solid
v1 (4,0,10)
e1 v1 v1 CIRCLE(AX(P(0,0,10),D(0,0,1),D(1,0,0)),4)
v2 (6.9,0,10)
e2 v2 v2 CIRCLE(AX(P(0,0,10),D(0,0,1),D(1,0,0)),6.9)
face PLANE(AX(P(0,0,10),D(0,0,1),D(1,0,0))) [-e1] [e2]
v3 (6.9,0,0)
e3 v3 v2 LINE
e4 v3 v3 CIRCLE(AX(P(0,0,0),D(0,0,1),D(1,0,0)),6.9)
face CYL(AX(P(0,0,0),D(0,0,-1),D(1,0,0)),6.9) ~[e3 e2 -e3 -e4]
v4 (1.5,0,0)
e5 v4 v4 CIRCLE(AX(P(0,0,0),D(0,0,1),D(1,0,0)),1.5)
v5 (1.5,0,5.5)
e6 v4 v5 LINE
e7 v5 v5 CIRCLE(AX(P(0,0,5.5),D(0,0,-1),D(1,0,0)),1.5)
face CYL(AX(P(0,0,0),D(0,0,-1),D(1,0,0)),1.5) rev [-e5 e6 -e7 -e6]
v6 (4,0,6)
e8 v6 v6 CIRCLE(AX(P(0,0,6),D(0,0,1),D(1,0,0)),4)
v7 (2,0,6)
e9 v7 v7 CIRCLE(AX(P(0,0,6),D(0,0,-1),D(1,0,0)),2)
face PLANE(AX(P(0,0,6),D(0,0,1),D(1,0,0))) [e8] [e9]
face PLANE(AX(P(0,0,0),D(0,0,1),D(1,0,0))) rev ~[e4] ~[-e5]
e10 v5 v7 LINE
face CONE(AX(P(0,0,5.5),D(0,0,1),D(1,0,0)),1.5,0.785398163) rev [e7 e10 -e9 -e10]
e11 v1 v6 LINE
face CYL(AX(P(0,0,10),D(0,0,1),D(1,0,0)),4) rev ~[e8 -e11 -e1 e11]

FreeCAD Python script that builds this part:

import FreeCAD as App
import Part
import Sketcher


def edges_at(feature, points):
    """Names of the edges that pass closest to the given points."""
    edges = feature.Shape.Edges
    near = lambda p: min(range(len(edges)), key=lambda i: edges[i].distToShape(Part.Vertex(*p))[0])
    return sorted({f"Edge{near(p) + 1}" for p in points})

doc = App.newDocument("Part")
params = doc.addObject("Spreadsheet::Sheet", "Params")
for row, (alias, value) in enumerate([
    ("sketch1_diameter", "3 mm"),
    ("sketch1_diameter2", "13.8 mm"),
    ("pad1_length", "10 mm"),
    ("sketch2_diameter", "8 mm"),
    ("pocket1_length", "4 mm"),
    ("chamfer_size", "0.5 mm"),
], start=1):
    params.set(f"A{row}", alias)
    params.set(f"B{row}", "=" + value)
    params.setAlias(f"B{row}", alias)

body = doc.addObject("PartDesign::Body", "Body")

sketch1 = body.newObject("Sketcher::SketchObject", "Sketch")
sketch1.AttachmentSupport = (doc.getObject("XY_Plane"), [""])
sketch1.MapMode = "FlatFace"
sketch1.addGeometry(Part.Circle(App.Vector(0, 0, 0), App.Vector(0, 0, 1), 6.9), False)
sketch1.addGeometry(Part.Circle(App.Vector(0, 0, 0), App.Vector(0, 0, 1), 1.5), False)
sketch1.addConstraint(Sketcher.Constraint("Coincident", 0, 3, -1, 1))
sketch1.addConstraint(Sketcher.Constraint("Coincident", 1, 3, -1, 1))
sketch1.addConstraint(Sketcher.Constraint("Diameter", 1, 3.0))
sketch1.addConstraint(Sketcher.Constraint("Diameter", 0, 13.8))
sketch1.setExpression("Constraints[2]", "Params.sketch1_diameter")
sketch1.setExpression("Constraints[3]", "Params.sketch1_diameter2")
pad1 = body.newObject("PartDesign::Pad", "Pad")
pad1.Profile = sketch1
pad1.setExpression("Length", "Params.pad1_length")

sketch2 = body.newObject("Sketcher::SketchObject", "Sketch001")
sketch2.AttachmentSupport = (doc.getObject("XY_Plane"), [""])
sketch2.MapMode = "FlatFace"
sketch2.AttachmentOffset = App.Placement(App.Vector(0, 0, 10), App.Rotation())
sketch2.addGeometry(Part.Circle(App.Vector(0, 0, 0), App.Vector(0, 0, 1), 4), False)
sketch2.addConstraint(Sketcher.Constraint("Coincident", 0, 3, -1, 1))
sketch2.addConstraint(Sketcher.Constraint("Diameter", 0, 8.0))
sketch2.setExpression("Constraints[1]", "Params.sketch2_diameter")
pocket1 = body.newObject("PartDesign::Pocket", "Pocket")
pocket1.Profile = sketch2
pocket1.setExpression("Length", "Params.pocket1_length")
doc.recompute()

chamfer = body.newObject("PartDesign::Chamfer", "Chamfer")
chamfer.Base = (pocket1, edges_at(pocket1, [(-1.5, 0, 6)]))
chamfer.setExpression("Size", "Params.chamfer_size")

doc.recompute()
